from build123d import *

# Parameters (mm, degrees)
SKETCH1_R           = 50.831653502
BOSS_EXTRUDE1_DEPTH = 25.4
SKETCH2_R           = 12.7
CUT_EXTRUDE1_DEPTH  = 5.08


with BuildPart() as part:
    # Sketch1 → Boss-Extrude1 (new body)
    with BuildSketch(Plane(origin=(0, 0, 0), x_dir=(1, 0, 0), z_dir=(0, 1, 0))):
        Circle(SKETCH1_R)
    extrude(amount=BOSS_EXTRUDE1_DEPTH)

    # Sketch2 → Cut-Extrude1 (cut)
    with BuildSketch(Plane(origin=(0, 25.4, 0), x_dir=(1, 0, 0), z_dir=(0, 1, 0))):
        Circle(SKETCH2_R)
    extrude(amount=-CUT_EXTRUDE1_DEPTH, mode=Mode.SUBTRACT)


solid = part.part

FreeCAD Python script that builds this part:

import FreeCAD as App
import Part
import Sketcher
Q = App.Units.Quantity

doc = App.newDocument("Part")
body = doc.addObject("PartDesign::Body", "Body")

sketch1 = doc.addObject("Sketcher::SketchObject", "Sketch")
body.addObject(sketch1)
sketch1.AttachmentSupport = (doc.XZ_Plane, [""])
sketch1.MapMode = "FlatFace"
sketch1.addGeometry(Part.Circle(App.Vector(0, 0, 0), App.Vector(0, 0, 1), 51), False)
sketch1.addConstraint([
    Sketcher.Constraint("Coincident", 0, 3, -1, 1),
    Sketcher.Constraint("Diameter", 0, 101.663307),
])
pad1 = doc.addObject("PartDesign::Pad", "Pad")
body.addObject(pad1)
pad1.Profile = sketch1
pad1.Length = Q("1 in")
pad1.Reversed = True

sketch2 = doc.addObject("Sketcher::SketchObject", "Sketch001")
body.addObject(sketch2)
sketch2.AttachmentSupport = (doc.XZ_Plane, [""])
sketch2.MapMode = "FlatFace"
sketch2.AttachmentOffset = App.Placement(App.Vector(0, 0, -1 * 25.4), App.Rotation())
sketch2.addGeometry(Part.Circle(App.Vector(0, 0, 0), App.Vector(0, 0, 1), 13), False)
sketch2.addConstraint([
    Sketcher.Constraint("Coincident", 0, 3, -1, 1),
    Sketcher.Constraint("Diameter", 0, Q("1 in")),
])
pocket1 = doc.addObject("PartDesign::Pocket", "Pocket")
body.addObject(pocket1)
pocket1.Profile = sketch2
pocket1.Length = Q("0.2 in")
pocket1.Reversed = True

doc.recompute()
